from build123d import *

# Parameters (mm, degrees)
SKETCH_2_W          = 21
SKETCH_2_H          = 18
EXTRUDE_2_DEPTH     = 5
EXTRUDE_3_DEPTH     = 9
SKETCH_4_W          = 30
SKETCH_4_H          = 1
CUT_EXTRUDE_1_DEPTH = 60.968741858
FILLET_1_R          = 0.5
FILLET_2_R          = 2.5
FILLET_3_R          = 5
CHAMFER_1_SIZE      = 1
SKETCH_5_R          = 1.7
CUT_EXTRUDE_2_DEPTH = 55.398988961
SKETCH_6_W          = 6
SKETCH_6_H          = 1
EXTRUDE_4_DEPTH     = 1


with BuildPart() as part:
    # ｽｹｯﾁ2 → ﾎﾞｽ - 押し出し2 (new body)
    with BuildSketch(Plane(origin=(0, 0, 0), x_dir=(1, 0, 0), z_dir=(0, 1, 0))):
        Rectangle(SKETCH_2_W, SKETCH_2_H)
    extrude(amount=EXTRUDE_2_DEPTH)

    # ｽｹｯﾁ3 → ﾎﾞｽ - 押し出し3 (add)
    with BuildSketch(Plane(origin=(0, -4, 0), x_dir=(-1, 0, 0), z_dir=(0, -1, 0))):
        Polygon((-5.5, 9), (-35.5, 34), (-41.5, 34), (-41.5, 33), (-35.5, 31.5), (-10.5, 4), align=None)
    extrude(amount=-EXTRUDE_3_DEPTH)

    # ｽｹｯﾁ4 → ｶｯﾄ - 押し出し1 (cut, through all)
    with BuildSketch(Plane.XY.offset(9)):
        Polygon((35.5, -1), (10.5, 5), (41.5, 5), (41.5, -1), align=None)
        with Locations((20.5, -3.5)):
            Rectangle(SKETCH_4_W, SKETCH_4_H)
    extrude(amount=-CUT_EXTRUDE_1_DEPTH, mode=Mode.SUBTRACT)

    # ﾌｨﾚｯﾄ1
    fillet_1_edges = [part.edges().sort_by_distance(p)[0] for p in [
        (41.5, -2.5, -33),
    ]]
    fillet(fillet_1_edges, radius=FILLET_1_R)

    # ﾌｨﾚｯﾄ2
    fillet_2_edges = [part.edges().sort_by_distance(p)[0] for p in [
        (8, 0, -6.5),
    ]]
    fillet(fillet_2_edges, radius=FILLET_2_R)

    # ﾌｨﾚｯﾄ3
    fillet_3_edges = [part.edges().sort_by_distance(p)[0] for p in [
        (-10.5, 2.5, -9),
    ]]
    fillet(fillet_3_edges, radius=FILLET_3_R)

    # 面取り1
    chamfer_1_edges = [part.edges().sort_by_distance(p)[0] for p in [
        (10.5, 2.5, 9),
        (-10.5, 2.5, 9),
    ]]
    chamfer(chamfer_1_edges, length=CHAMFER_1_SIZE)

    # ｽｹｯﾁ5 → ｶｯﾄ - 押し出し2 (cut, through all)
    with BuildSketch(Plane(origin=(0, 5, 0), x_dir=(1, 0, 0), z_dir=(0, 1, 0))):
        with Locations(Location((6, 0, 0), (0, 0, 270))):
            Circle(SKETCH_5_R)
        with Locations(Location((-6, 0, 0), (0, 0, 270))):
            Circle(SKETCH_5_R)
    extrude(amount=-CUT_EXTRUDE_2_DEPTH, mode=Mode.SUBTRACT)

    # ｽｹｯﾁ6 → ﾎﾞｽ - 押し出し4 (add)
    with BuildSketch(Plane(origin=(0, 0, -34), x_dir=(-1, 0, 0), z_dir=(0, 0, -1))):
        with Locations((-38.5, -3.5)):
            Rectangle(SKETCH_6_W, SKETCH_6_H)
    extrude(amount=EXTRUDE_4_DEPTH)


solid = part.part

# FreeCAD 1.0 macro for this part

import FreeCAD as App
import Part
import Sketcher
Q = App.Units.Quantity


def edges_at(feature, points):
    """Names of the edges that pass closest to the given points."""
    edges = feature.Shape.Edges
    near = lambda p: min(range(len(edges)), key=lambda i: edges[i].distToShape(Part.Vertex(*p))[0])
    return sorted({f"Edge{near(p) + 1}" for p in points})


def add_polygon(sketch, points):
    """Adds a closed chain of lines whose ends are joined by coincident constraints."""
    first, n = sketch.GeometryCount, len(points)
    for a, b in zip(points, points[1:] + points[:1]):
        sketch.addGeometry(Part.LineSegment(App.Vector(*a, 0), App.Vector(*b, 0)), False)
    for i in range(n):
        sketch.addConstraint(Sketcher.Constraint("Coincident", first + i, 2, first + (i + 1) % n, 1))

doc = App.newDocument("Part")
body = doc.addObject("PartDesign::Body", "Body")

sketch1 = body.newObject("Sketcher::SketchObject", "Sketch")
sketch1.AttachmentSupport = (doc.getObject("XZ_Plane"), [""])
sketch1.MapMode = "FlatFace"
add_polygon(sketch1, [(-10, -9), (-10, 9), (10, 9), (10, -9)])
sketch1.addConstraint([
    Sketcher.Constraint("Vertical", 0),
    Sketcher.Constraint("Horizontal", 1),
    Sketcher.Constraint("Vertical", 2),
    Sketcher.Constraint("Horizontal", 3),
    Sketcher.Constraint("Symmetric", 0, 2, 2, 2, -1, 1),
    Sketcher.Constraint("DistanceX", 1, 1, 1, 2, 21.0),
    Sketcher.Constraint("DistanceY", 0, 1, 0, 2, 18.0),
])
pad1 = body.newObject("PartDesign::Pad", "Pad")
pad1.Profile = sketch1
pad1.Length = 5
pad1.Reversed = True

sketch2 = body.newObject("Sketcher::SketchObject", "Sketch001")
sketch2.AttachmentSupport = (doc.getObject("XZ_Plane"), [""])
sketch2.MapMode = "FlatFace"
sketch2.AttachmentOffset = App.Placement(App.Vector(0, 0, 4), App.Rotation())
add_polygon(sketch2, [(5.5, -9), (35.5, -34), (41.5, -34), (41.5, -33), (35.5, -31.5), (10.5, -4)])
sketch2.addConstraint([
    Sketcher.Constraint("Horizontal", 1),
    Sketcher.Constraint("Vertical", 2),
    Sketcher.Constraint("Vertical", 0, 2, 3, 2),
    Sketcher.Constraint("DistanceX", 1, 1, 1, 2, 6.0),
    Sketcher.Constraint("DistanceY", 2, 1, 2, 2, 1.0),
    Sketcher.Constraint("Angle", 5, Q("-135 deg")),
    Sketcher.Constraint("DistanceY", 0, 2, -1, 1, 34.0),
    Sketcher.Constraint("DistanceY", 4, 2, -1, 1, 4.0),
    Sketcher.Constraint("DistanceY", 5, 2, -1, 1, 9.0),
    Sketcher.Constraint("DistanceX", 4, 2, 3, 2, 25.0),
    Sketcher.Constraint("DistanceX", -1, 1, 0, 2, 35.5),
    Sketcher.Constraint("DistanceY", 3, 2, -1, 1, 31.5),
])
pad2 = body.newObject("PartDesign::Pad", "Pad001")
pad2.Profile = sketch2
pad2.Length = 9
pad2.Reversed = True

sketch3 = body.newObject("Sketcher::SketchObject", "Sketch002")
sketch3.AttachmentSupport = (doc.getObject("XY_Plane"), [""])
sketch3.MapMode = "FlatFace"
sketch3.AttachmentOffset = App.Placement(App.Vector(0, 0, 9), App.Rotation())
add_polygon(sketch3, [(10.5, 5), (35.5, -1), (41.5, -1), (41.5, 5)])
add_polygon(sketch3, [(5.5, -3), (5.5, -4), (35.5, -4), (35.5, -3)])
sketch3.addConstraint([
    Sketcher.Constraint("Horizontal", 1),
    Sketcher.Constraint("Vertical", 2),
    Sketcher.Constraint("Horizontal", 3),
    Sketcher.Constraint("Vertical", 4),
    Sketcher.Constraint("Horizontal", 5),
    Sketcher.Constraint("Vertical", 6),
    Sketcher.Constraint("Horizontal", 7),
    Sketcher.Constraint("Vertical", 0, 2, 5, 2),
    Sketcher.Constraint("Equal", 1, 2),
    Sketcher.Constraint("DistanceX", 1, 1, 1, 2, 6.0),
    Sketcher.Constraint("DistanceX", 3, 2, 3, 1, 31.0),
    Sketcher.Constraint("DistanceX", 5, 1, 5, 2, 30.0),
    Sketcher.Constraint("DistanceY", 4, 2, 4, 1, 1.0),
    Sketcher.Constraint("DistanceY", 0, 2, -1, 1, 1.0),
    Sketcher.Constraint("DistanceY", 4, 2, -1, 1, 4.0),
    Sketcher.Constraint("DistanceX", -1, 1, 0, 2, 35.5),
])
pocket1 = body.newObject("PartDesign::Pocket", "Pocket")
pocket1.Profile = sketch3
pocket1.Type = "ThroughAll"
doc.recompute()

fillet = body.newObject("PartDesign::Fillet", "Fillet")
fillet.Base = (pocket1, edges_at(pocket1, [(41.5, -2.5, -33)]))
fillet.Radius = 0.5
doc.recompute()

fillet2 = body.newObject("PartDesign::Fillet", "Fillet001")
fillet2.Base = (fillet, edges_at(fillet, [(8, 0, -6.5)]))
fillet2.Radius = 2.5
doc.recompute()

fillet3 = body.newObject("PartDesign::Fillet", "Fillet002")
fillet3.Base = (fillet2, edges_at(fillet2, [(-10.5, 2.5, -9)]))
fillet3.Radius = 5
doc.recompute()

chamfer = body.newObject("PartDesign::Chamfer", "Chamfer")
chamfer.Base = (fillet3, edges_at(fillet3, [(10.5, 2.5, 9), (-10.5, 2.5, 9)]))
chamfer.Size = 1

sketch4 = body.newObject("Sketcher::SketchObject", "Sketch003")
sketch4.AttachmentSupport = (doc.getObject("XZ_Plane"), [""])
sketch4.MapMode = "FlatFace"
sketch4.AttachmentOffset = App.Placement(App.Vector(0, 0, -5), App.Rotation())
sketch4.addGeometry([
    Part.Circle(App.Vector(6, 0, 0), App.Vector(0, 0, 1), 1.7),
    Part.Circle(App.Vector(-6, 0, 0), App.Vector(0, 0, 1), 1.7),
], False)
sketch4.addConstraint([
    Sketcher.Constraint("Equal", 0, 1),
    Sketcher.Constraint("Symmetric", 0, 3, 1, 3, -1, 1),
    Sketcher.Constraint("PointOnObject", 0, 3, -1),
    Sketcher.Constraint("Diameter", 0, 3.4),
    Sketcher.Constraint("DistanceX", -1, 1, 0, 3, 6.0),
])
pocket2 = body.newObject("PartDesign::Pocket", "Pocket001")
pocket2.Profile = sketch4
pocket2.Type = "ThroughAll"
pocket2.Reversed = True

sketch5 = body.newObject("Sketcher::SketchObject", "Sketch004")
sketch5.AttachmentSupport = (doc.getObject("XY_Plane"), [""])
sketch5.MapMode = "FlatFace"
sketch5.AttachmentOffset = App.Placement(App.Vector(0, 0, -34), App.Rotation())
add_polygon(sketch5, [(41.5, -3), (41.5, -4), (35.5, -4), (35.5, -3)])
sketch5.addConstraint([
    Sketcher.Constraint("Vertical", 0),
    Sketcher.Constraint("Horizontal", 1),
    Sketcher.Constraint("Vertical", 2),
    Sketcher.Constraint("Horizontal", 3),
    Sketcher.Constraint("DistanceX", 1, 2, 1, 1, 6.0),
    Sketcher.Constraint("DistanceY", 0, 2, 0, 1, 1.0),
    Sketcher.Constraint("DistanceY", 0, 2, -1, 1, 4.0),
    Sketcher.Constraint("DistanceX", -1, 1, 0, 2, 41.5),
])
pad3 = body.newObject("PartDesign::Pad", "Pad002")
pad3.Profile = sketch5
pad3.Length = 1
pad3.Reversed = True

doc.recompute()
